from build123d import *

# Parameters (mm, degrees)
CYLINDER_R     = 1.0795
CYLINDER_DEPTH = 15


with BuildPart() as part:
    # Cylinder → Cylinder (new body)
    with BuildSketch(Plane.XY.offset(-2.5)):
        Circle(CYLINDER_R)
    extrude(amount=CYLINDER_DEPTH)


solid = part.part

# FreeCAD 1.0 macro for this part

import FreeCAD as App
import Part
import Sketcher
from FreeCAD import Vector
Q = App.Units.Quantity

doc = App.newDocument("Part")
body = doc.addObject("PartDesign::Body", "Body")

# Sketch on XY plane
sketch1 = body.newObject("Sketcher::SketchObject", "Sketch")
sketch1.AttachmentSupport = (doc.getObject("XY_Plane"), [""])
sketch1.MapMode = "FlatFace"
sketch1.AttachmentOffset = App.Placement(Vector(0, 0, -2.5), App.Rotation())
sketch1.addGeometry(Part.Circle(Vector(0, 0, 0), Vector(0, 0, 1), 1.1), False)
sketch1.addConstraint([
    Sketcher.Constraint("Coincident", 0, 3, -1, 1),
    Sketcher.Constraint("Diameter", 0, Q("2.159 mm")),
])
pad1 = body.newObject("PartDesign::Pad", "Pad")
pad1.Profile = sketch1
pad1.Length = 15

doc.recompute()
